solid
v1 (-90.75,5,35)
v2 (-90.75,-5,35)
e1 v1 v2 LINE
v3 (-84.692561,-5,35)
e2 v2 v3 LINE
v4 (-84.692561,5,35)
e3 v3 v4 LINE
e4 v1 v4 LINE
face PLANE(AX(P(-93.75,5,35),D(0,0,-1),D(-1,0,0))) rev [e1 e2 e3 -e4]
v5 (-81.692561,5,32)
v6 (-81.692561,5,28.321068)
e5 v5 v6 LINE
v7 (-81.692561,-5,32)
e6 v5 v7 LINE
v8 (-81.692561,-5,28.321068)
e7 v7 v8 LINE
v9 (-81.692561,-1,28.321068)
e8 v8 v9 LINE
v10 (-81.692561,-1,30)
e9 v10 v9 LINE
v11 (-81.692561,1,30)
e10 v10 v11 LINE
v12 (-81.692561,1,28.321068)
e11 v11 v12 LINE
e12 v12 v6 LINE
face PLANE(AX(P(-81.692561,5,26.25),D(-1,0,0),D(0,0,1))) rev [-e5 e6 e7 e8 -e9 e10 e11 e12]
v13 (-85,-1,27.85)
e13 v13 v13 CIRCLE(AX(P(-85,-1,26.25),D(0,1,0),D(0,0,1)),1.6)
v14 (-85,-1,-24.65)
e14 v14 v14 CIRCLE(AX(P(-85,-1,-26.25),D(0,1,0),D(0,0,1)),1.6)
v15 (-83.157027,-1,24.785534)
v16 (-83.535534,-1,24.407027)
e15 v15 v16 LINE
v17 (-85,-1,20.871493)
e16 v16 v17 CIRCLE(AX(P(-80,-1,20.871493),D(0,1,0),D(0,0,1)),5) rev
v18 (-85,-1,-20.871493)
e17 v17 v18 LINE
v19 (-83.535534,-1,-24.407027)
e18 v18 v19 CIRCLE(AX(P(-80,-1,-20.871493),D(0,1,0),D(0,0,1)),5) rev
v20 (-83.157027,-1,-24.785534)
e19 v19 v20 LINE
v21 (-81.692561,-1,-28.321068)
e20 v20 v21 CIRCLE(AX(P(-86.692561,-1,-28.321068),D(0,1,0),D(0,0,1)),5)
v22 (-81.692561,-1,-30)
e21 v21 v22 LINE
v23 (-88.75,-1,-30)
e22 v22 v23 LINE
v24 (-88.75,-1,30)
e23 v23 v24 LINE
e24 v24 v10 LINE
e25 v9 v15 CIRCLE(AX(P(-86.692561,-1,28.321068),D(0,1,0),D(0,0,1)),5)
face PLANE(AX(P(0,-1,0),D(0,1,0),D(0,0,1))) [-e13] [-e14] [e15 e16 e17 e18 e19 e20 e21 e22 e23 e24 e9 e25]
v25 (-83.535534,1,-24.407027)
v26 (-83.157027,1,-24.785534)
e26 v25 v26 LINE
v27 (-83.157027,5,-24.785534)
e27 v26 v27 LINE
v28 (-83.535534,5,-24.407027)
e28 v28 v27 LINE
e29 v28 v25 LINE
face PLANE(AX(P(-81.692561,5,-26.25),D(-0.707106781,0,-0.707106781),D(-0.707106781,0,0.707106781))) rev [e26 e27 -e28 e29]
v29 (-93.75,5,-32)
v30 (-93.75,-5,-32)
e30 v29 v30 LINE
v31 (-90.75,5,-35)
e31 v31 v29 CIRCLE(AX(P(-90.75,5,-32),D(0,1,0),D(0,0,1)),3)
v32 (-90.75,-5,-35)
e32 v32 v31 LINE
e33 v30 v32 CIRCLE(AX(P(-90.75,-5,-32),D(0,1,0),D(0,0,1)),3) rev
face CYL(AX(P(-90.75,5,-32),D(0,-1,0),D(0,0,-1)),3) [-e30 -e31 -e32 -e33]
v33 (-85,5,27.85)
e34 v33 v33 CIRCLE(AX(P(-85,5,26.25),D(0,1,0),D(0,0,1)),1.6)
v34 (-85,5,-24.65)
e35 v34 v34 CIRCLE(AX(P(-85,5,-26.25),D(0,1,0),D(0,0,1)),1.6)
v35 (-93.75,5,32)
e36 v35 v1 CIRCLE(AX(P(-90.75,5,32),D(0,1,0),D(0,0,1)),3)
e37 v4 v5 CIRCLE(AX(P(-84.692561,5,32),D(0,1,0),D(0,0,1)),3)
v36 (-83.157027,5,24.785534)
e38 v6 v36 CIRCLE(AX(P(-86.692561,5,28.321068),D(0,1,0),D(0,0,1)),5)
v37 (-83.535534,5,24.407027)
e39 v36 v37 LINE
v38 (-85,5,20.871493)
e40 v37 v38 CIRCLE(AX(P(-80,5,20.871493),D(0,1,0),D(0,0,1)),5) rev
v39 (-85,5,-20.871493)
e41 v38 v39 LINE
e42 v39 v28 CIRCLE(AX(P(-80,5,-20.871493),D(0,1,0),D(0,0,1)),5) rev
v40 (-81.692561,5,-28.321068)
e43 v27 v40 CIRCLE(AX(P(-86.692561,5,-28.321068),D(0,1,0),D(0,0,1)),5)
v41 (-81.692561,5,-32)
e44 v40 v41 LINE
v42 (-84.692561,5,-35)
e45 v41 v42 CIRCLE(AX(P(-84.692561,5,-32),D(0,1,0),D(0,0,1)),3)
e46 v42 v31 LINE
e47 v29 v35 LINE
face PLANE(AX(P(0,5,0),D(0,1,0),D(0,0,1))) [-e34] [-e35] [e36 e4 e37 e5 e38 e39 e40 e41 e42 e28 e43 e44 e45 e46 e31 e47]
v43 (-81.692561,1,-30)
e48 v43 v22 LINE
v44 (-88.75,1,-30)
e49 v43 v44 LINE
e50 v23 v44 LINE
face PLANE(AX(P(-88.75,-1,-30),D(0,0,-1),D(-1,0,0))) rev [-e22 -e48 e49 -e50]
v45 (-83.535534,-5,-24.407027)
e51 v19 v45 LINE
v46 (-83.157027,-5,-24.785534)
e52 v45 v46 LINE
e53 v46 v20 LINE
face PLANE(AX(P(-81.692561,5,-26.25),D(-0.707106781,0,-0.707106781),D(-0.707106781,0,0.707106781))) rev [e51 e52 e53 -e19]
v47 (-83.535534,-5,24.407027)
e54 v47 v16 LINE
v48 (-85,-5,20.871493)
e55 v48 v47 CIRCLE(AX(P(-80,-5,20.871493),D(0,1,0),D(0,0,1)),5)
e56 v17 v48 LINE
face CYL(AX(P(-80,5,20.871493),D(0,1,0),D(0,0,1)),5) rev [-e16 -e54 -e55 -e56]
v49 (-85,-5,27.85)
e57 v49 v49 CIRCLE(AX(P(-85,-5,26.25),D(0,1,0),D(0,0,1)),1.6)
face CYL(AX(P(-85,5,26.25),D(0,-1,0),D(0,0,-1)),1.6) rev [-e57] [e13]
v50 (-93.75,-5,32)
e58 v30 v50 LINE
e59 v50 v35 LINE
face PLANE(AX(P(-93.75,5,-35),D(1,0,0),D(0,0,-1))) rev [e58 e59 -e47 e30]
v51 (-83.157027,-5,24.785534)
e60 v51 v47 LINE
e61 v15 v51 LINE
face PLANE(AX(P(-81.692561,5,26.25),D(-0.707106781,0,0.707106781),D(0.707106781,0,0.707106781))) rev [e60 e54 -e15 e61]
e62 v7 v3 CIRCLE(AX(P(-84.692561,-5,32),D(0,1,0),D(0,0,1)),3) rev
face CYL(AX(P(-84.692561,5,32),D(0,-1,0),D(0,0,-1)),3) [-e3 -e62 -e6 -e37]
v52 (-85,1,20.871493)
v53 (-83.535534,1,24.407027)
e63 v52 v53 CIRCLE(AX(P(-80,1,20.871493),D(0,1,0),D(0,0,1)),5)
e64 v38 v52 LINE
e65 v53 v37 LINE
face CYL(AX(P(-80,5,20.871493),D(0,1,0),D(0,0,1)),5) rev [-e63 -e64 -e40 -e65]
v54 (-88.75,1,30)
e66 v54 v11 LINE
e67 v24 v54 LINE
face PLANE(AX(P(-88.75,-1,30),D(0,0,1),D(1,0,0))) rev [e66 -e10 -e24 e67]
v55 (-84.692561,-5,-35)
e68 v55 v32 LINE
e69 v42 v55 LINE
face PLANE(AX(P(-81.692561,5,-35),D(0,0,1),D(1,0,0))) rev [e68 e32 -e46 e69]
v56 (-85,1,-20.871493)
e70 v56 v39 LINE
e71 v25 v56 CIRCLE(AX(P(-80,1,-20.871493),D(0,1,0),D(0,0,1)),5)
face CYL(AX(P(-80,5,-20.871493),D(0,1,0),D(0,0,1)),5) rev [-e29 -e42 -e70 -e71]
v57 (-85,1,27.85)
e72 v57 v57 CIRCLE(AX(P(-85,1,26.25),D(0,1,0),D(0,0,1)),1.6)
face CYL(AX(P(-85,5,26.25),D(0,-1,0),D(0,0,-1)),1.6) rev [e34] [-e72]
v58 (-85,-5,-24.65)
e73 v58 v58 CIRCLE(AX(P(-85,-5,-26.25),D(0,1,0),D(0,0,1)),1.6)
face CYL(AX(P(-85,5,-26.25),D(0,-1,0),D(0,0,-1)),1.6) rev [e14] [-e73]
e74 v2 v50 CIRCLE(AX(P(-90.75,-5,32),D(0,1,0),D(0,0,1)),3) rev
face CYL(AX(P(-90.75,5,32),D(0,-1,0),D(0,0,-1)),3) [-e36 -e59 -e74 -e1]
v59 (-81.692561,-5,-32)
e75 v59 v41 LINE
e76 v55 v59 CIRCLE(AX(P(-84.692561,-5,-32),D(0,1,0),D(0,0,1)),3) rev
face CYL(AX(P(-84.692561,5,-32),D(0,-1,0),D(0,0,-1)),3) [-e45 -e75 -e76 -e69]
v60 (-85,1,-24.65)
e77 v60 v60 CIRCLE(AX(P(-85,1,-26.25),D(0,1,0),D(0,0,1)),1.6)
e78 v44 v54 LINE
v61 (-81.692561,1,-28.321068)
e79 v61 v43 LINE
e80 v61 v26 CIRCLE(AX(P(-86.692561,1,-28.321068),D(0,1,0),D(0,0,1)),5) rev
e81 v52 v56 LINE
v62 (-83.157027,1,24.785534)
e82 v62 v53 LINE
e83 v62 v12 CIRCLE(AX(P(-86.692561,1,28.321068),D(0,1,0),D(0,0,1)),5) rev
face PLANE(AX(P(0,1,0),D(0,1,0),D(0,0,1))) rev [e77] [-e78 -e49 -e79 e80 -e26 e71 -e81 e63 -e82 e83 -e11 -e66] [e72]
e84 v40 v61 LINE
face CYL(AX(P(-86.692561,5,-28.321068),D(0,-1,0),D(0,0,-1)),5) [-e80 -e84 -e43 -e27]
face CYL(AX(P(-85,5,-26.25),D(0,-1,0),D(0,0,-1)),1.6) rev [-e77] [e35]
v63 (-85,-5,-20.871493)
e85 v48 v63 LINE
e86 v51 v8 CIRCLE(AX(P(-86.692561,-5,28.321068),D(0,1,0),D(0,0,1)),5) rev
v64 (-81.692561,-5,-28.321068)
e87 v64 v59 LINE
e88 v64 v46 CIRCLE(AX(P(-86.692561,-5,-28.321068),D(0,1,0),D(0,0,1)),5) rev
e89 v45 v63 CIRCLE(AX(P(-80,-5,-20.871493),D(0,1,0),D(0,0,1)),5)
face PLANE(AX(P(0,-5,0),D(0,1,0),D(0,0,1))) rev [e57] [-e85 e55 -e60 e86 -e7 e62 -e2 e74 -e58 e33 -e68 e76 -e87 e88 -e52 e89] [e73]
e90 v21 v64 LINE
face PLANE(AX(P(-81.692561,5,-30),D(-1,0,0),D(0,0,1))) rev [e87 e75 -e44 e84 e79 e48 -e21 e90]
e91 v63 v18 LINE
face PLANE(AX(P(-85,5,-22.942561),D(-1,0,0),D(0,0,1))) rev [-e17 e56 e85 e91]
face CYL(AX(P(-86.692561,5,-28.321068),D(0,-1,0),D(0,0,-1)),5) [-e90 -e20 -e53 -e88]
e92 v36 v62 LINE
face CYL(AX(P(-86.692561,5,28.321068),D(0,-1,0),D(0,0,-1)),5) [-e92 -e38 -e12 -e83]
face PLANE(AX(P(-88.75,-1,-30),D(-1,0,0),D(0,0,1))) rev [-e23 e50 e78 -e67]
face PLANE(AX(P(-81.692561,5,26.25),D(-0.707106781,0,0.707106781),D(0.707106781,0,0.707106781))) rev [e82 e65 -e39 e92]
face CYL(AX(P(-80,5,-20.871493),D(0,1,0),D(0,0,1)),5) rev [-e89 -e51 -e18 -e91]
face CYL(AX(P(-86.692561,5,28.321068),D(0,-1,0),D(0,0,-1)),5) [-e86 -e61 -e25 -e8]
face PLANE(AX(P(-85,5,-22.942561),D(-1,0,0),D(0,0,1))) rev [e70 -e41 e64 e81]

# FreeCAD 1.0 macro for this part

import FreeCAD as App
import Part
import Sketcher

V = App.Vector
Q = App.Units.Quantity


def edges_at(feature, points):
    """Names of the edges that pass closest to the given points."""
    edges = feature.Shape.Edges
    near = lambda p: min(range(len(edges)), key=lambda i: edges[i].distToShape(Part.Vertex(*p))[0])
    return sorted({f"Edge{near(p) + 1}" for p in points})

doc = App.newDocument("Part")
body = doc.addObject("PartDesign::Body", "Body")

# Sketch on XZ plane
sketch1 = body.newObject("Sketcher::SketchObject", "Sketch")
sketch1.AttachmentSupport = (doc.getObject("XZ_Plane"), [""])
sketch1.MapMode = "FlatFace"
sketch1.addGeometry(Part.LineSegment(V(-81.7, -26.2, 0), V(-81.7, -35, 0)), False)
sketch1.addGeometry(Part.LineSegment(V(-81.7, -35, 0), V(-93.8, -35, 0)), False)
sketch1.addGeometry(Part.LineSegment(V(-93.8, -35, 0), V(-93.8, 35, 0)), False)
sketch1.addGeometry(Part.LineSegment(V(-93.8, 35, 0), V(-81.7, 35, 0)), False)
sketch1.addGeometry(Part.LineSegment(V(-81.7, 35, 0), V(-81.7, 26.2, 0)), False)
sketch1.addGeometry(Part.LineSegment(V(-81.7, 26.2, 0), V(-85, 22.9, 0)), False)
sketch1.addGeometry(Part.LineSegment(V(-85, 22.9, 0), V(-85, -22.9, 0)), False)
sketch1.addGeometry(Part.LineSegment(V(-85, -22.9, 0), V(-81.7, -26.2, 0)), False)
sketch1.addGeometry(Part.Circle(V(-85, 26.2, 0), V(0, 0, 1), 1.6), False)
sketch1.addGeometry(Part.Circle(V(-85, -26.2, 0), V(0, 0, 1), 1.6), False)
sketch1.addConstraint(Sketcher.Constraint("Coincident", 0, 2, 1, 1))
sketch1.addConstraint(Sketcher.Constraint("Coincident", 1, 2, 2, 1))
sketch1.addConstraint(Sketcher.Constraint("Coincident", 2, 2, 3, 1))
sketch1.addConstraint(Sketcher.Constraint("Coincident", 3, 2, 4, 1))
sketch1.addConstraint(Sketcher.Constraint("Coincident", 4, 2, 5, 1))
sketch1.addConstraint(Sketcher.Constraint("Coincident", 5, 2, 6, 1))
sketch1.addConstraint(Sketcher.Constraint("Coincident", 6, 2, 7, 1))
sketch1.addConstraint(Sketcher.Constraint("Coincident", 7, 2, 0, 1))
sketch1.addConstraint(Sketcher.Constraint("Vertical", 0))
sketch1.addConstraint(Sketcher.Constraint("Horizontal", 1))
sketch1.addConstraint(Sketcher.Constraint("Vertical", 2))
sketch1.addConstraint(Sketcher.Constraint("Horizontal", 3))
sketch1.addConstraint(Sketcher.Constraint("Vertical", 4))
sketch1.addConstraint(Sketcher.Constraint("Vertical", 6))
sketch1.addConstraint(Sketcher.Constraint("Equal", 8, 9))
sketch1.addConstraint(Sketcher.Constraint("Symmetric", 8, 3, 9, 3, -1))
sketch1.addConstraint(Sketcher.Constraint("Symmetric", 0, 2, 3, 2, -1))
sketch1.addConstraint(Sketcher.Constraint("Perpendicular", 5, 7))
sketch1.addConstraint(Sketcher.Constraint("Horizontal", 8, 3, 4, 2))
sketch1.addConstraint(Sketcher.Constraint("Horizontal", 9, 3, 7, 2))
sketch1.addConstraint(Sketcher.Constraint("Vertical", 9, 3, 5, 2))
sketch1.addConstraint(Sketcher.Constraint("Equal", 5, 7))
sketch1.addConstraint(Sketcher.Constraint("Diameter", 8, Q("3.2 mm")))
sketch1.addConstraint(Sketcher.Constraint("DistanceY", 2, 1, 2, 2, Q("70 mm")))
sketch1.addConstraint(Sketcher.Constraint("DistanceX", 8, 3, -1, 1, Q("85 mm")))
sketch1.addConstraint(Sketcher.Constraint("DistanceY", 0, 2, 0, 1, Q("8.75 mm")))
sketch1.addConstraint(Sketcher.Constraint("DistanceX", 1, 2, -1, 1, Q("93.75 mm")))
sketch1.addConstraint(Sketcher.Constraint("DistanceX", 1, 2, 1, 1, Q("12.057439 mm")))
pad1 = body.newObject("PartDesign::Pad", "Pad")
pad1.Profile = sketch1
pad1.Length = 10
pad1.Midplane = True

# Sketch on XZ plane
sketch2 = body.newObject("Sketcher::SketchObject", "Sketch001")
sketch2.AttachmentSupport = (doc.getObject("XZ_Plane"), [""])
sketch2.MapMode = "FlatFace"
sketch2.addGeometry(Part.LineSegment(V(-89, -30, 0), V(-89, 30, 0)), False)
sketch2.addGeometry(Part.LineSegment(V(-89, 30, 0), V(-76, 30, 0)), False)
sketch2.addGeometry(Part.LineSegment(V(-76, 30, 0), V(-76, -30, 0)), False)
sketch2.addGeometry(Part.LineSegment(V(-76, -30, 0), V(-89, -30, 0)), False)
sketch2.addConstraint(Sketcher.Constraint("Coincident", 0, 2, 1, 1))
sketch2.addConstraint(Sketcher.Constraint("Coincident", 1, 2, 2, 1))
sketch2.addConstraint(Sketcher.Constraint("Coincident", 2, 2, 3, 1))
sketch2.addConstraint(Sketcher.Constraint("Coincident", 3, 2, 0, 1))
sketch2.addConstraint(Sketcher.Constraint("Vertical", 0))
sketch2.addConstraint(Sketcher.Constraint("Horizontal", 1))
sketch2.addConstraint(Sketcher.Constraint("Vertical", 2))
sketch2.addConstraint(Sketcher.Constraint("Horizontal", 3))
sketch2.addConstraint(Sketcher.Constraint("DistanceY", 0, 1, 0, 2, Q("60 mm")))
sketch2.addConstraint(Sketcher.Constraint("DistanceY", -1, 1, 0, 2, Q("30 mm")))
sketch2.addConstraint(Sketcher.Constraint("DistanceX", 0, 2, -1, 1, Q("88.75 mm")))
sketch2.addConstraint(Sketcher.Constraint("DistanceX", 1, 1, 1, 2, Q("13.182572 mm")))
pocket1 = body.newObject("PartDesign::Pocket", "Pocket")
pocket1.Profile = sketch2
pocket1.Length = 2
pocket1.Midplane = True
doc.recompute()

fillet = body.newObject("PartDesign::Fillet", "Fillet")
fillet.Base = (pocket1, edges_at(pocket1, [
    (-81.693, 3, -26.25),
    (-85, 3, -22.943),
    (-85, 3, 22.943),
    (-81.693, 3, 26.25),
    (-81.693, -3, -26.25),
    (-85, -3, -22.943),
    (-85, -3, 22.943),
    (-81.693, -3, 26.25),
]))
fillet.Radius = 5
doc.recompute()

fillet2 = body.newObject("PartDesign::Fillet", "Fillet001")
fillet2.Base = (fillet, edges_at(fillet, [
    (-81.693, 0, 35),
    (-93.75, 0, 35),
    (-93.75, 0, -35),
    (-81.693, 0, -35),
]))
fillet2.Radius = 3

doc.recompute()
